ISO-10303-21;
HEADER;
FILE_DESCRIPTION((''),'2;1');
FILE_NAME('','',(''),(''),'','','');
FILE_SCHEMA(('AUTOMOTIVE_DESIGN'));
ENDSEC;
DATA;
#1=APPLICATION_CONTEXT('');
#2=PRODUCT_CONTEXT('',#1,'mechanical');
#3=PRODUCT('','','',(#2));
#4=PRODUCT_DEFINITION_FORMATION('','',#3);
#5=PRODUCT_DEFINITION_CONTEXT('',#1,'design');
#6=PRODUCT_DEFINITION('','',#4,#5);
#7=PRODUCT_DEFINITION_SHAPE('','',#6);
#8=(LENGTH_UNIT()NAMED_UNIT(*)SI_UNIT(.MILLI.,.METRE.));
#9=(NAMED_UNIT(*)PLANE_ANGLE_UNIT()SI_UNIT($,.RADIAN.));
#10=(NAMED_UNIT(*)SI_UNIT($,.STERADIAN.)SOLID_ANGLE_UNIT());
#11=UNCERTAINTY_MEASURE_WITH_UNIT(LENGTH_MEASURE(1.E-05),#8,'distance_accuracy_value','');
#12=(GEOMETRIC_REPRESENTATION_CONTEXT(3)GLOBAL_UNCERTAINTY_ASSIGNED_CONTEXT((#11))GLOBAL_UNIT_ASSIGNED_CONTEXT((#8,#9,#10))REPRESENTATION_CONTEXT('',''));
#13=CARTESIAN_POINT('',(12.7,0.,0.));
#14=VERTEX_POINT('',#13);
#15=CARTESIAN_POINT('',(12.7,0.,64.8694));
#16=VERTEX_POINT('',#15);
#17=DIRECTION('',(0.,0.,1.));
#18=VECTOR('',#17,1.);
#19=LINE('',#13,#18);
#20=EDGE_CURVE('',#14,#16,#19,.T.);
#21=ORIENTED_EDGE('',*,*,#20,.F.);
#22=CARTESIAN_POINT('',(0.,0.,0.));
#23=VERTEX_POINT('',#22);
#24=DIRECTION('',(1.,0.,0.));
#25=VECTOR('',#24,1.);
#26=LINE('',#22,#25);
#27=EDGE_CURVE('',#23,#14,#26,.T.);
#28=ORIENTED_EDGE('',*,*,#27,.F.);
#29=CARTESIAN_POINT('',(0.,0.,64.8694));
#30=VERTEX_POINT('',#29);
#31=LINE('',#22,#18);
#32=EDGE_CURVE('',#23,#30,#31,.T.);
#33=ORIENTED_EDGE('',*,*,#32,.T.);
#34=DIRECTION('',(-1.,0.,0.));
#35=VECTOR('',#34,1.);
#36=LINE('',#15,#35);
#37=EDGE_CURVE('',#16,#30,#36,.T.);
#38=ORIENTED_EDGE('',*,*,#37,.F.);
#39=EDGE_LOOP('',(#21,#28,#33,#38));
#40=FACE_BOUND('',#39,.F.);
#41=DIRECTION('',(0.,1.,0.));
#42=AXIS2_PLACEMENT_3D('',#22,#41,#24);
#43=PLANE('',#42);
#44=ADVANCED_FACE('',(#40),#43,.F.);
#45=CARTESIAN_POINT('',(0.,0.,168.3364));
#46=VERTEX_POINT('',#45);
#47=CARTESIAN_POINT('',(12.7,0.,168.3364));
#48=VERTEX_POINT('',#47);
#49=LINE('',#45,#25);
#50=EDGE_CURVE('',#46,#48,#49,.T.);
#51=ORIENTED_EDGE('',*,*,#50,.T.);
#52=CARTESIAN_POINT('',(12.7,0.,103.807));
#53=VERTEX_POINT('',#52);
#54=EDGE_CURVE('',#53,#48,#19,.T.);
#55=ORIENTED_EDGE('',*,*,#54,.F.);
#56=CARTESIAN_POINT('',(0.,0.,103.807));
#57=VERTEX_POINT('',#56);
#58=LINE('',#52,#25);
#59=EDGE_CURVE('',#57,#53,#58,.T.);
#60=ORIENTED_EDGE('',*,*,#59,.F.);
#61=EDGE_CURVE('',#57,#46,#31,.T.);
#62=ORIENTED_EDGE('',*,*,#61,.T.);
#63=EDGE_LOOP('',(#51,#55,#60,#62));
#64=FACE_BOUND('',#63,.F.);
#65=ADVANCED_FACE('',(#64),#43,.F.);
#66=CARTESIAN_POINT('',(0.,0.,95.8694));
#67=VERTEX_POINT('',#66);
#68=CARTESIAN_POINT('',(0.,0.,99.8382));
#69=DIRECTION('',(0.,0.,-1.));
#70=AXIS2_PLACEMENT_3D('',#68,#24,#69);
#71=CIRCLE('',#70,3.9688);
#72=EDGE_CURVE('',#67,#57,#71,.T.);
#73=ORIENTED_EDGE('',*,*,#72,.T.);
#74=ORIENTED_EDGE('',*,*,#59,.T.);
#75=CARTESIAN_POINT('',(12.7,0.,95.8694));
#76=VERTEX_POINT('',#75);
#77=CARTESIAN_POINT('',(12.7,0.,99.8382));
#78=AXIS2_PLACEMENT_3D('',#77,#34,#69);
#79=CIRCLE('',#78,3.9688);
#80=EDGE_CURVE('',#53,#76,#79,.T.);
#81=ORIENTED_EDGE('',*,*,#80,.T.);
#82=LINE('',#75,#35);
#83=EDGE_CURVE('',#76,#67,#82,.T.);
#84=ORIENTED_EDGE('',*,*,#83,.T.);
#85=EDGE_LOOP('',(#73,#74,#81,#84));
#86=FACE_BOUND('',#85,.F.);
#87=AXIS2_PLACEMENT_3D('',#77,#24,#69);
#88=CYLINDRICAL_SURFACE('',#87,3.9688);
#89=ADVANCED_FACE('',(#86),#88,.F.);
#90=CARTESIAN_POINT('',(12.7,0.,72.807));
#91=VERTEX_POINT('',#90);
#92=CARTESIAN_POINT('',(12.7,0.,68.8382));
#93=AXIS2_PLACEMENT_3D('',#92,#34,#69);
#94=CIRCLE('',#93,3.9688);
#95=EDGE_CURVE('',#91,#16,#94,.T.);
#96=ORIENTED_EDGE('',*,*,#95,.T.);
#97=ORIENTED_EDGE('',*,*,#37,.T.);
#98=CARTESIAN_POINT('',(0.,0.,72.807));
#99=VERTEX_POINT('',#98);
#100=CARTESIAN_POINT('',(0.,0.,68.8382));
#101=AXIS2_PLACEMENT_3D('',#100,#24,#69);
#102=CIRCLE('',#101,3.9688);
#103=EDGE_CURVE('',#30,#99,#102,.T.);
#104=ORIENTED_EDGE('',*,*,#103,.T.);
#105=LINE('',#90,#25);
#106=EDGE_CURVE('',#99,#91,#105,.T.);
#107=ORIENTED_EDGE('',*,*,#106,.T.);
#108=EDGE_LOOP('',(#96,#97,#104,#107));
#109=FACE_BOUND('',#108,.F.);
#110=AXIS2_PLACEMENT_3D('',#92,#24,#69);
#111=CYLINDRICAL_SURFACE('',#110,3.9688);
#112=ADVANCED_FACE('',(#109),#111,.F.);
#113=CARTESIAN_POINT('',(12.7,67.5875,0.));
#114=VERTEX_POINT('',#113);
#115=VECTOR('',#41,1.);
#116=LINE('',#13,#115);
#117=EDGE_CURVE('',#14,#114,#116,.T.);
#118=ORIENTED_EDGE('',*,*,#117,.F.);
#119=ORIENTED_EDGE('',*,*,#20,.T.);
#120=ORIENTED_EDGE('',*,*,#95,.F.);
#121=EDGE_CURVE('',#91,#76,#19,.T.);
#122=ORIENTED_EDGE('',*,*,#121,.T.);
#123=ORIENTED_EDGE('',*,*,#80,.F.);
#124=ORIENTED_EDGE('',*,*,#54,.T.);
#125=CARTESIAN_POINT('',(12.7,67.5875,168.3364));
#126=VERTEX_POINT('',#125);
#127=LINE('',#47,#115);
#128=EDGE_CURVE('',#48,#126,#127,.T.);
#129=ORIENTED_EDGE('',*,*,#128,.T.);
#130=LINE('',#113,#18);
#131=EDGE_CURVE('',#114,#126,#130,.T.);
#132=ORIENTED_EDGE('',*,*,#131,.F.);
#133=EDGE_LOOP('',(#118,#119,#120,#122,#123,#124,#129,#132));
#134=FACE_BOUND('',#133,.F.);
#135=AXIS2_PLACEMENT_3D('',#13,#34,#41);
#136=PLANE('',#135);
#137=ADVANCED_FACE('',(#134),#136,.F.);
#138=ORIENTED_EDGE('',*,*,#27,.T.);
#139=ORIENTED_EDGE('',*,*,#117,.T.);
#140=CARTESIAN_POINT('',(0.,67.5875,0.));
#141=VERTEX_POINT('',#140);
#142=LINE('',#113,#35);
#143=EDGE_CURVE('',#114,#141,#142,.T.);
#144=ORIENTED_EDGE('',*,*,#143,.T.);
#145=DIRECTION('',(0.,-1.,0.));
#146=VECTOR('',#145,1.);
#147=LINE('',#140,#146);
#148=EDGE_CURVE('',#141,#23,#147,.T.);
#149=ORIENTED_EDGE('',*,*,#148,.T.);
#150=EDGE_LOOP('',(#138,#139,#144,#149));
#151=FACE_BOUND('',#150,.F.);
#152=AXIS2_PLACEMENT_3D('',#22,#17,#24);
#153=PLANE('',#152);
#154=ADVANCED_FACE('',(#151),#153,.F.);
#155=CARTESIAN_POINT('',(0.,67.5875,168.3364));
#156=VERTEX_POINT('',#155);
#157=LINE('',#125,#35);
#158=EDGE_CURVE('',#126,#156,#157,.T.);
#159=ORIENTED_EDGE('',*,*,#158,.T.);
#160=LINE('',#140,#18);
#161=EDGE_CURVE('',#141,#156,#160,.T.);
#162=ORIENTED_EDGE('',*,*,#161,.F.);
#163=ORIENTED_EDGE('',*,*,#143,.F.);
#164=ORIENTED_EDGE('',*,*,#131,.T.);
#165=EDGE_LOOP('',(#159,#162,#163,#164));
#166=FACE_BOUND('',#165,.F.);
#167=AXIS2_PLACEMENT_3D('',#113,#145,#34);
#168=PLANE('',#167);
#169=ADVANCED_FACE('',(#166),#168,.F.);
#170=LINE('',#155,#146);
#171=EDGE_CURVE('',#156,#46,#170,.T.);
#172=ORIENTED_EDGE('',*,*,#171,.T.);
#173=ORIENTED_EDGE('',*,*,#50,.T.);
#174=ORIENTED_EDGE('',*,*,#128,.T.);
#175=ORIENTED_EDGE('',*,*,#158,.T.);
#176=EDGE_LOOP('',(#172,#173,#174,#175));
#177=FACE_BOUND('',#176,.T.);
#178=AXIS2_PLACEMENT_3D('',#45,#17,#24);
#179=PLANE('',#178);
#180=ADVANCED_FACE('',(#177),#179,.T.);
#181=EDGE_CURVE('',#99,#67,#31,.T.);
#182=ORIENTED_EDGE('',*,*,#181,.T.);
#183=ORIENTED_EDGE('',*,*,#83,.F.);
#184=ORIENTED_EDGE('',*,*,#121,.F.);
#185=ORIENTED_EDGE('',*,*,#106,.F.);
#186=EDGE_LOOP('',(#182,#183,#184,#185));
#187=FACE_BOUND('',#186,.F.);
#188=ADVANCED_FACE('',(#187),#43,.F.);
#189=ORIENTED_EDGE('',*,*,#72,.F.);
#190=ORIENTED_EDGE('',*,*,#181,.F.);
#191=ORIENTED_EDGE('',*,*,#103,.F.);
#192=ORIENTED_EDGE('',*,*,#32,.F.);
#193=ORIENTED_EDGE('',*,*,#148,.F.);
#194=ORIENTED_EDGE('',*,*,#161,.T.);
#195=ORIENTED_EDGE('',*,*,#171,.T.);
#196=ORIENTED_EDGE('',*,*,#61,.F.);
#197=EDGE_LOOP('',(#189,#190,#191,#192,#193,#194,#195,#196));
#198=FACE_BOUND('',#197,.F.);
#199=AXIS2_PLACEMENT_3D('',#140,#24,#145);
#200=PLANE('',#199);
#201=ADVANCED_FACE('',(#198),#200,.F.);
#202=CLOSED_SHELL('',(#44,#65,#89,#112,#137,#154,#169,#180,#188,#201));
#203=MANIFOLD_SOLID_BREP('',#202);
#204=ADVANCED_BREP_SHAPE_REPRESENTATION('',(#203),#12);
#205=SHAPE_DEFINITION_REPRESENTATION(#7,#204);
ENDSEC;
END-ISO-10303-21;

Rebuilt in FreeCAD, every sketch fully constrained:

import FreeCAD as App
import Part
import Sketcher

V = App.Vector
Q = App.Units.Quantity


def add_polygon(sketch, points):
    """Adds a closed chain of lines whose ends are joined by coincident constraints."""
    first, n = sketch.GeometryCount, len(points)
    for a, b in zip(points, points[1:] + points[:1]):
        sketch.addGeometry(Part.LineSegment(App.Vector(*a, 0), App.Vector(*b, 0)), False)
    for i in range(n):
        sketch.addConstraint(Sketcher.Constraint("Coincident", first + i, 2, first + (i + 1) % n, 1))

doc = App.newDocument("Part")
body = doc.addObject("PartDesign::Body", "Body")

sketch1 = doc.addObject("Sketcher::SketchObject", "Sketch")
body.addObject(sketch1)
sketch1.AttachmentSupport = (doc.XY_Plane, [""])
sketch1.MapMode = "FlatFace"
add_polygon(sketch1, [(0, 68), (0, 0), (13, 0), (13, 68)])
sketch1.addConstraint(Sketcher.Constraint("Vertical", 0))
sketch1.addConstraint(Sketcher.Constraint("Horizontal", 1))
sketch1.addConstraint(Sketcher.Constraint("Vertical", 2))
sketch1.addConstraint(Sketcher.Constraint("Horizontal", 3))
sketch1.addConstraint(Sketcher.Constraint("Coincident", 0, 2, -1, 1))
sketch1.addConstraint(Sketcher.Constraint("DistanceX", 1, 1, 1, 2, Q("0.5 in")))
sketch1.addConstraint(Sketcher.Constraint("DistanceY", 0, 2, 0, 1, 67.5875))
pad1 = doc.addObject("PartDesign::Pad", "Pad")
body.addObject(pad1)
pad1.Profile = sketch1
pad1.Length = 168.3364

sketch2 = doc.addObject("Sketcher::SketchObject", "Sketch001")
body.addObject(sketch2)
sketch2.AttachmentSupport = (doc.YZ_Plane, [""])
sketch2.MapMode = "FlatFace"
sketch2.AttachmentOffset = App.Placement(V(0, 0, 0.5 * 25.4), App.Rotation())
sketch2.addGeometry(Part.Circle(V(0, 68.8, 0), V(0, 0, 1), 4), False)
sketch2.addGeometry(Part.Circle(V(0, 99.8, 0), V(0, 0, 1), 4), False)
sketch2.addConstraint(Sketcher.Constraint("Equal", 0, 1))
sketch2.addConstraint(Sketcher.Constraint("PointOnObject", 0, 3, -2))
sketch2.addConstraint(Sketcher.Constraint("PointOnObject", 1, 3, -2))
sketch2.addConstraint(Sketcher.Constraint("Diameter", 0, Q("0.3125 in")))
sketch2.addConstraint(Sketcher.Constraint("DistanceY", 0, 3, 1, 3, 31.0))
sketch2.addConstraint(Sketcher.Constraint("DistanceY", -1, 1, 0, 3, 68.8382))
pocket1 = doc.addObject("PartDesign::Pocket", "Pocket")
body.addObject(pocket1)
pocket1.Profile = sketch2
pocket1.Type = "ThroughAll"

doc.recompute()
